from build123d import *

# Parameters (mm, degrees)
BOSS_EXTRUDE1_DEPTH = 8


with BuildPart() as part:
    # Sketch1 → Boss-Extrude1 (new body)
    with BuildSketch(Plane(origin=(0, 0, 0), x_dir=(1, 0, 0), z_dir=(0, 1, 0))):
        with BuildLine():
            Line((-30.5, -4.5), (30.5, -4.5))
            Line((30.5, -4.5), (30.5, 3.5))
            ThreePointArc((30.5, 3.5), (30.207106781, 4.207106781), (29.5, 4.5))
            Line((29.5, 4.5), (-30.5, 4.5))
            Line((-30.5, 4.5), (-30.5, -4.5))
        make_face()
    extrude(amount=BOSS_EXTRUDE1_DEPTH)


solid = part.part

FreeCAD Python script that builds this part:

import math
import FreeCAD as App
import Part
import Sketcher

V = App.Vector
Q = App.Units.Quantity

doc = App.newDocument("Part")
body = doc.addObject("PartDesign::Body", "Body")

sketch1 = body.newObject("Sketcher::SketchObject", "Sketch")
sketch1.AttachmentSupport = (doc.getObject("XZ_Plane"), [""])
sketch1.MapMode = "FlatFace"
sketch1.addGeometry(Part.LineSegment(V(-30.5, 4.5, 0), V(30.5, 4.5, 0)), False)
sketch1.addGeometry(Part.LineSegment(V(30.5, 4.5, 0), V(30.5, -3.5, 0)), False)
sketch1.addGeometry(Part.ArcOfCircle(Part.Circle(V(29.5, -3.5, 0), V(0, 0, 1), 1), math.radians(-90), math.radians(0)), False)
sketch1.addGeometry(Part.LineSegment(V(29.5, -4.5, 0), V(-30.5, -4.5, 0)), False)
sketch1.addGeometry(Part.LineSegment(V(-30.5, -4.5, 0), V(-30.5, 4.5, 0)), False)
sketch1.addConstraint(Sketcher.Constraint("Coincident", 0, 2, 1, 1))
sketch1.addConstraint(Sketcher.Constraint("Tangent", 1, 2, 2, 2))
sketch1.addConstraint(Sketcher.Constraint("Tangent", 2, 1, 3, 1))
sketch1.addConstraint(Sketcher.Constraint("Coincident", 3, 2, 4, 1))
sketch1.addConstraint(Sketcher.Constraint("Coincident", 4, 2, 0, 1))
sketch1.addConstraint(Sketcher.Constraint("Horizontal", 0))
sketch1.addConstraint(Sketcher.Constraint("Vertical", 1))
sketch1.addConstraint(Sketcher.Constraint("Horizontal", 3))
sketch1.addConstraint(Sketcher.Constraint("Vertical", 4))
sketch1.addConstraint(Sketcher.Constraint("Symmetric", 0, 2, 3, 2, -1, 1))
sketch1.addConstraint(Sketcher.Constraint("Radius", 2, Q("1 mm")))
sketch1.addConstraint(Sketcher.Constraint("DistanceX", 0, 1, 0, 2, Q("61 mm")))
sketch1.addConstraint(Sketcher.Constraint("DistanceY", 1, 2, 1, 1, Q("8 mm")))
pad1 = body.newObject("PartDesign::Pad", "Pad")
pad1.Profile = sketch1
pad1.Length = 8
pad1.Reversed = True

doc.recompute()
